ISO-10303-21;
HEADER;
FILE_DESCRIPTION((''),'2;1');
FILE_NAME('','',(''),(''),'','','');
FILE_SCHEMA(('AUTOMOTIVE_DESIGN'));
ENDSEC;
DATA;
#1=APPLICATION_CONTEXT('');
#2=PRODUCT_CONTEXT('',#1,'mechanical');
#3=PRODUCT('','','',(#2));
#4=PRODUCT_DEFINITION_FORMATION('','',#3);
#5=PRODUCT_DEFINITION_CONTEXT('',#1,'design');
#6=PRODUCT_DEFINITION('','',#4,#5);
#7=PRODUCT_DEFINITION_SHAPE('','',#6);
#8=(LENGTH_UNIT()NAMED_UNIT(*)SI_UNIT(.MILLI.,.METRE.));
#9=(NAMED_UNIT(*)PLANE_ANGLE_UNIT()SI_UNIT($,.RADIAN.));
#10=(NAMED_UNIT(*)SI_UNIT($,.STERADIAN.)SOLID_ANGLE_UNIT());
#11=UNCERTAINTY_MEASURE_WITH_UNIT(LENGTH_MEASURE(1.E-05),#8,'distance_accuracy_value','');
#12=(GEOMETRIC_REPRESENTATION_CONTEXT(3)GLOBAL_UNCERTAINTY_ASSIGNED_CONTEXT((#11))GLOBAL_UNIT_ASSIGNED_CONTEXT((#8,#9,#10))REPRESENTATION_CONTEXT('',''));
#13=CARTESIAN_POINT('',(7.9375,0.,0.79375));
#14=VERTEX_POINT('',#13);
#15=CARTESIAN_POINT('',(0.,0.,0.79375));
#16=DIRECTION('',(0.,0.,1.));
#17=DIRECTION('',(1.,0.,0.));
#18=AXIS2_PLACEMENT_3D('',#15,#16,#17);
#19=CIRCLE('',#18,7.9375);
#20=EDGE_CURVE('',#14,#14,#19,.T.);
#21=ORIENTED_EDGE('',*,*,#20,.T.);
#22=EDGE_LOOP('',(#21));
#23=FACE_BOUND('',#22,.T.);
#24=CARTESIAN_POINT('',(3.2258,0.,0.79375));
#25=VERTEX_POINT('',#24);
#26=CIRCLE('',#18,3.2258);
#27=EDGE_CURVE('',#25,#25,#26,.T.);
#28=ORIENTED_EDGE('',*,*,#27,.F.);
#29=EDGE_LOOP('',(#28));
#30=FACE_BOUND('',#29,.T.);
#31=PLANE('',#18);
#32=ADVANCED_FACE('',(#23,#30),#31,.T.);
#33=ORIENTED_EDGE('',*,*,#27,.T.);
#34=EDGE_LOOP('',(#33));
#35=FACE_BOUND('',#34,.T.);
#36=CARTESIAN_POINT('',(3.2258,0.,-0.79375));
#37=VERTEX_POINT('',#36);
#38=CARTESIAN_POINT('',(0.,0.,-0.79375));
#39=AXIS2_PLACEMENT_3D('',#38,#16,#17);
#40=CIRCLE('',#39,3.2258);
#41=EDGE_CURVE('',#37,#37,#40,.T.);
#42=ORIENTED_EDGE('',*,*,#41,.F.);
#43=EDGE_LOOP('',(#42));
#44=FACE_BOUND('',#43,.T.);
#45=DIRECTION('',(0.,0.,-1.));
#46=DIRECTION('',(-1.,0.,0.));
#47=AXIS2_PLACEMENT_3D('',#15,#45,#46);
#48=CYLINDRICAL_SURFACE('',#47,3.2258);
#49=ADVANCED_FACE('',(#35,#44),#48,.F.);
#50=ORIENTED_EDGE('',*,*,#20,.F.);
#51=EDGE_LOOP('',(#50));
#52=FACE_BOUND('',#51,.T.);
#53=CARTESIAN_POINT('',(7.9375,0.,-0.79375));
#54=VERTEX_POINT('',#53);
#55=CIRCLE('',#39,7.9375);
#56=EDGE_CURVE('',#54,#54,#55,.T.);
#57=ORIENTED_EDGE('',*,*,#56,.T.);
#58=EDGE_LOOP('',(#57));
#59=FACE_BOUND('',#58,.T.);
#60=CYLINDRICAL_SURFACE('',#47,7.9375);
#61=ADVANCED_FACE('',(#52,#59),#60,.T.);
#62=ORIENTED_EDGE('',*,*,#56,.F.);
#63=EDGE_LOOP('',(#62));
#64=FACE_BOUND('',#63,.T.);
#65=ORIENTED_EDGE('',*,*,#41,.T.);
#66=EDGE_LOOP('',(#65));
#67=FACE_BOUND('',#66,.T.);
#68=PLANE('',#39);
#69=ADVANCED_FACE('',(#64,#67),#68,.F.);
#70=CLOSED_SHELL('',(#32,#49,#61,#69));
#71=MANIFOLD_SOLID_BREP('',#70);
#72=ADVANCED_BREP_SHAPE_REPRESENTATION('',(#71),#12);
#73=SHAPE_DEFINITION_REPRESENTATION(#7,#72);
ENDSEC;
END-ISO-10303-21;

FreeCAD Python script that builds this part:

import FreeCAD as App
import Part
import Sketcher
from FreeCAD import Vector
Q = App.Units.Quantity

doc = App.newDocument("Part")
params = doc.addObject("Spreadsheet::Sheet", "Params")
for row, (alias, value) in enumerate([
    ("sketch1_diameter", "0.625 in"),
    ("sketch1_diameter2", "0.254 in"),
    ("pad1_length", "0.0625 in"),
], start=1):
    params.set(f"A{row}", alias)
    params.set(f"B{row}", "=" + value)
    params.setAlias(f"B{row}", alias)

body = doc.addObject("PartDesign::Body", "Body")

sketch1 = body.newObject("Sketcher::SketchObject", "Sketch")
sketch1.AttachmentSupport = (doc.getObject("XY_Plane"), [""])
sketch1.MapMode = "FlatFace"
sketch1.addGeometry(Part.Circle(Vector(0, 0, 0), Vector(0, 0, 1), 7.9), False)
sketch1.addGeometry(Part.Circle(Vector(0, 0, 0), Vector(0, 0, 1), 3.2), False)
sketch1.addConstraint(Sketcher.Constraint("Coincident", 0, 3, -1, 1))
sketch1.addConstraint(Sketcher.Constraint("Coincident", 1, 3, -1, 1))
sketch1.addConstraint(Sketcher.Constraint("Diameter", 0, Q("0.625 in")))
sketch1.addConstraint(Sketcher.Constraint("Diameter", 1, Q("0.254 in")))
sketch1.setExpression("Constraints[2]", "Params.sketch1_diameter")
sketch1.setExpression("Constraints[3]", "Params.sketch1_diameter2")
pad1 = body.newObject("PartDesign::Pad", "Pad")
pad1.Profile = sketch1
pad1.setExpression("Length", "Params.pad1_length")
pad1.Midplane = True

doc.recompute()
